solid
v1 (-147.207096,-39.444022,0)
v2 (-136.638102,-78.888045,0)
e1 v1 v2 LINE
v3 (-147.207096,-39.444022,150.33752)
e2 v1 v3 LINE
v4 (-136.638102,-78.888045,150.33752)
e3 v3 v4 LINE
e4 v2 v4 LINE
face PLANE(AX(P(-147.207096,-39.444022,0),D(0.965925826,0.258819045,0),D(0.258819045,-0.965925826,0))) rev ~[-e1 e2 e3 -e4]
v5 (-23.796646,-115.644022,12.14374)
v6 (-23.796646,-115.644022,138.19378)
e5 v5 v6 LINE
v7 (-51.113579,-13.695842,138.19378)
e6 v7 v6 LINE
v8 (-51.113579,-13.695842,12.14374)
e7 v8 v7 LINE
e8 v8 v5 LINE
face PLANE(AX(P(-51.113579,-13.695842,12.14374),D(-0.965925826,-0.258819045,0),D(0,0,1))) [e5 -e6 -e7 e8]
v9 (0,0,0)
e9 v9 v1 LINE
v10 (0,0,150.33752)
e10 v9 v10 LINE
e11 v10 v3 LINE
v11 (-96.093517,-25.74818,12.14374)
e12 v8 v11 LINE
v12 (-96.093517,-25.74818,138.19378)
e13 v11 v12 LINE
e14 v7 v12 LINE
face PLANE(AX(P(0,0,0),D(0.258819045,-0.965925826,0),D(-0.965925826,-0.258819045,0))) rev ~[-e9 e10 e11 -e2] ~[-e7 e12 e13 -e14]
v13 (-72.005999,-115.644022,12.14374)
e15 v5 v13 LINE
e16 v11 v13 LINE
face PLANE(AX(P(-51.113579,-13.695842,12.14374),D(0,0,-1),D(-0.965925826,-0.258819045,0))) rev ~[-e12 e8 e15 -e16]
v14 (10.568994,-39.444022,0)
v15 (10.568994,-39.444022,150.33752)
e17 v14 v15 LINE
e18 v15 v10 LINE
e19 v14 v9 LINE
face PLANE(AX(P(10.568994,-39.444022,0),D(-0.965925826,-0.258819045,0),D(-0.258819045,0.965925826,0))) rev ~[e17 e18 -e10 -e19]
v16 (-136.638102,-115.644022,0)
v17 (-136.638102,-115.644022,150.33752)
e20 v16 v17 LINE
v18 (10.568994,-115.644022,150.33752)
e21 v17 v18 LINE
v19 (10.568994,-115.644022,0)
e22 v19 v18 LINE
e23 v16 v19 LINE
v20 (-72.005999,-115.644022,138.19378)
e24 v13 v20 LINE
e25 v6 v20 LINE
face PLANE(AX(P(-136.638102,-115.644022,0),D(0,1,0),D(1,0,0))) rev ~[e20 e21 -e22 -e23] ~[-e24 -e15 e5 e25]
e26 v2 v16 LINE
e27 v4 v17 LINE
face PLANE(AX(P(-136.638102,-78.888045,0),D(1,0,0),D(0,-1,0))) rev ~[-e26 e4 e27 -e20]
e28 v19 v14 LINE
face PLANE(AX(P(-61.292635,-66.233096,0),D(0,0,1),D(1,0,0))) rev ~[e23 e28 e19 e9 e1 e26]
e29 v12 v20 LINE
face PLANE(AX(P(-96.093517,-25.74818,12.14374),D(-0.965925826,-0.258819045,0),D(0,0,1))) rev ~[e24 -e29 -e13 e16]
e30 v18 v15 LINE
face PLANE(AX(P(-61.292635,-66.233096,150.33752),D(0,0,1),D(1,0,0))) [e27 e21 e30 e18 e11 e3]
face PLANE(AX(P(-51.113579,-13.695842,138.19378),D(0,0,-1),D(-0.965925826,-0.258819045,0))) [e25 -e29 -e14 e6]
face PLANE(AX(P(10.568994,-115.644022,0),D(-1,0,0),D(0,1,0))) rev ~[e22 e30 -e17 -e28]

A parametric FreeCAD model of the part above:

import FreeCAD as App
import Part
import Sketcher
Q = App.Units.Quantity

doc = App.newDocument("Part")
body = doc.addObject("PartDesign::Body", "Body")

# Sketch on XY plane
sketch1 = body.newObject("Sketcher::SketchObject", "Sketch")
sketch1.AttachmentSupport = (doc.getObject("XY_Plane"), [""])
sketch1.MapMode = "FlatFace"
sketch1.addGeometry([
    Part.LineSegment(App.Vector(10.568994, -39.444022, 0), App.Vector(0, 0, 0)),  # 0
    Part.LineSegment(App.Vector(0, 0, 0), App.Vector(-147.207096, -39.444022, 0)),  # 1
    Part.LineSegment(App.Vector(-147.207096, -39.444022, 0), App.Vector(-136.638102, -78.888045, 0)),  # 2
    Part.LineSegment(App.Vector(-136.638102, -78.888045, 0), App.Vector(-136.638102, -115.644022, 0)),  # 3
    Part.LineSegment(App.Vector(-136.638102, -115.644022, 0), App.Vector(10.568994, -115.644022, 0)),  # 4
    Part.LineSegment(App.Vector(10.568994, -115.644022, 0), App.Vector(10.568994, -39.444022, 0)),  # 5
], False)
sketch1.addConstraint([
    Sketcher.Constraint("Coincident", 0, 2, 1, 1),
    Sketcher.Constraint("Coincident", 1, 2, 2, 1),
    Sketcher.Constraint("Coincident", 2, 2, 3, 1),
    Sketcher.Constraint("Coincident", 3, 2, 4, 1),
    Sketcher.Constraint("Coincident", 4, 2, 5, 1),
    Sketcher.Constraint("Coincident", 5, 2, 0, 1),
    Sketcher.Constraint("Vertical", 3),
    Sketcher.Constraint("Horizontal", 4),
    Sketcher.Constraint("Vertical", 5),
    Sketcher.Constraint("Coincident", 0, 2, -1, 1),
    Sketcher.Constraint("Perpendicular", 0, 1),
    Sketcher.Constraint("Perpendicular", 1, 2),
    Sketcher.Constraint("Horizontal", 1, 2, 5, 2),
    Sketcher.Constraint("Equal", 0, 2),
    Sketcher.Constraint("DistanceY", 5, 1, 5, 2, Q("3 in")),
    Sketcher.Constraint("Distance", 1, Q("6 in")),
    Sketcher.Constraint("Angle", 0, Q("105 deg")),
])
pad1 = body.newObject("PartDesign::Pad", "Pad")
pad1.Profile = sketch1
pad1.Length = Q("5.9188 in")

# Sketch on an angled plane
sketch2 = body.newObject("Sketcher::SketchObject", "Sketch001")
sketch2.Placement = App.Placement(App.Vector(0, 0, 0), App.Rotation(App.Vector(-0.965925826, -0.258819045, 0), App.Vector(0, 0, 0.999999999), App.Vector(-0.258819045, 0.965925826, 0), "ZXY"))
sketch2.addGeometry([
    Part.LineSegment(App.Vector(52.916671, 138.19378, 0), App.Vector(52.916671, 12.14374, 0)),
    Part.LineSegment(App.Vector(52.916671, 12.14374, 0), App.Vector(99.483329, 12.14374, 0)),
    Part.LineSegment(App.Vector(99.483329, 12.14374, 0), App.Vector(99.483329, 138.19378, 0)),
    Part.LineSegment(App.Vector(99.483329, 138.19378, 0), App.Vector(52.916671, 138.19378, 0)),
], False)
sketch2.addConstraint([
    Sketcher.Constraint("Coincident", 0, 2, 1, 1),
    Sketcher.Constraint("Coincident", 1, 2, 2, 1),
    Sketcher.Constraint("Coincident", 2, 2, 3, 1),
    Sketcher.Constraint("Coincident", 3, 2, 0, 1),
    Sketcher.Constraint("Vertical", 0),
    Sketcher.Constraint("Horizontal", 1),
    Sketcher.Constraint("Vertical", 2),
    Sketcher.Constraint("Horizontal", 3),
    Sketcher.Constraint("DistanceY", 0, 2, 0, 1, Q("4.9626 in")),
    Sketcher.Constraint("DistanceY", -1, 1, 0, 2, Q("0.4781 in")),
    Sketcher.Constraint("DistanceX", 1, 1, 1, 2, Q("46.566658 mm")),
    Sketcher.Constraint("DistanceX", -1, 1, 0, 2, Q("52.916671 mm")),
])
pocket1 = body.newObject("PartDesign::Pocket", "Pocket")
pocket1.Profile = sketch2
pocket1.Length = 106.544523

doc.recompute()
